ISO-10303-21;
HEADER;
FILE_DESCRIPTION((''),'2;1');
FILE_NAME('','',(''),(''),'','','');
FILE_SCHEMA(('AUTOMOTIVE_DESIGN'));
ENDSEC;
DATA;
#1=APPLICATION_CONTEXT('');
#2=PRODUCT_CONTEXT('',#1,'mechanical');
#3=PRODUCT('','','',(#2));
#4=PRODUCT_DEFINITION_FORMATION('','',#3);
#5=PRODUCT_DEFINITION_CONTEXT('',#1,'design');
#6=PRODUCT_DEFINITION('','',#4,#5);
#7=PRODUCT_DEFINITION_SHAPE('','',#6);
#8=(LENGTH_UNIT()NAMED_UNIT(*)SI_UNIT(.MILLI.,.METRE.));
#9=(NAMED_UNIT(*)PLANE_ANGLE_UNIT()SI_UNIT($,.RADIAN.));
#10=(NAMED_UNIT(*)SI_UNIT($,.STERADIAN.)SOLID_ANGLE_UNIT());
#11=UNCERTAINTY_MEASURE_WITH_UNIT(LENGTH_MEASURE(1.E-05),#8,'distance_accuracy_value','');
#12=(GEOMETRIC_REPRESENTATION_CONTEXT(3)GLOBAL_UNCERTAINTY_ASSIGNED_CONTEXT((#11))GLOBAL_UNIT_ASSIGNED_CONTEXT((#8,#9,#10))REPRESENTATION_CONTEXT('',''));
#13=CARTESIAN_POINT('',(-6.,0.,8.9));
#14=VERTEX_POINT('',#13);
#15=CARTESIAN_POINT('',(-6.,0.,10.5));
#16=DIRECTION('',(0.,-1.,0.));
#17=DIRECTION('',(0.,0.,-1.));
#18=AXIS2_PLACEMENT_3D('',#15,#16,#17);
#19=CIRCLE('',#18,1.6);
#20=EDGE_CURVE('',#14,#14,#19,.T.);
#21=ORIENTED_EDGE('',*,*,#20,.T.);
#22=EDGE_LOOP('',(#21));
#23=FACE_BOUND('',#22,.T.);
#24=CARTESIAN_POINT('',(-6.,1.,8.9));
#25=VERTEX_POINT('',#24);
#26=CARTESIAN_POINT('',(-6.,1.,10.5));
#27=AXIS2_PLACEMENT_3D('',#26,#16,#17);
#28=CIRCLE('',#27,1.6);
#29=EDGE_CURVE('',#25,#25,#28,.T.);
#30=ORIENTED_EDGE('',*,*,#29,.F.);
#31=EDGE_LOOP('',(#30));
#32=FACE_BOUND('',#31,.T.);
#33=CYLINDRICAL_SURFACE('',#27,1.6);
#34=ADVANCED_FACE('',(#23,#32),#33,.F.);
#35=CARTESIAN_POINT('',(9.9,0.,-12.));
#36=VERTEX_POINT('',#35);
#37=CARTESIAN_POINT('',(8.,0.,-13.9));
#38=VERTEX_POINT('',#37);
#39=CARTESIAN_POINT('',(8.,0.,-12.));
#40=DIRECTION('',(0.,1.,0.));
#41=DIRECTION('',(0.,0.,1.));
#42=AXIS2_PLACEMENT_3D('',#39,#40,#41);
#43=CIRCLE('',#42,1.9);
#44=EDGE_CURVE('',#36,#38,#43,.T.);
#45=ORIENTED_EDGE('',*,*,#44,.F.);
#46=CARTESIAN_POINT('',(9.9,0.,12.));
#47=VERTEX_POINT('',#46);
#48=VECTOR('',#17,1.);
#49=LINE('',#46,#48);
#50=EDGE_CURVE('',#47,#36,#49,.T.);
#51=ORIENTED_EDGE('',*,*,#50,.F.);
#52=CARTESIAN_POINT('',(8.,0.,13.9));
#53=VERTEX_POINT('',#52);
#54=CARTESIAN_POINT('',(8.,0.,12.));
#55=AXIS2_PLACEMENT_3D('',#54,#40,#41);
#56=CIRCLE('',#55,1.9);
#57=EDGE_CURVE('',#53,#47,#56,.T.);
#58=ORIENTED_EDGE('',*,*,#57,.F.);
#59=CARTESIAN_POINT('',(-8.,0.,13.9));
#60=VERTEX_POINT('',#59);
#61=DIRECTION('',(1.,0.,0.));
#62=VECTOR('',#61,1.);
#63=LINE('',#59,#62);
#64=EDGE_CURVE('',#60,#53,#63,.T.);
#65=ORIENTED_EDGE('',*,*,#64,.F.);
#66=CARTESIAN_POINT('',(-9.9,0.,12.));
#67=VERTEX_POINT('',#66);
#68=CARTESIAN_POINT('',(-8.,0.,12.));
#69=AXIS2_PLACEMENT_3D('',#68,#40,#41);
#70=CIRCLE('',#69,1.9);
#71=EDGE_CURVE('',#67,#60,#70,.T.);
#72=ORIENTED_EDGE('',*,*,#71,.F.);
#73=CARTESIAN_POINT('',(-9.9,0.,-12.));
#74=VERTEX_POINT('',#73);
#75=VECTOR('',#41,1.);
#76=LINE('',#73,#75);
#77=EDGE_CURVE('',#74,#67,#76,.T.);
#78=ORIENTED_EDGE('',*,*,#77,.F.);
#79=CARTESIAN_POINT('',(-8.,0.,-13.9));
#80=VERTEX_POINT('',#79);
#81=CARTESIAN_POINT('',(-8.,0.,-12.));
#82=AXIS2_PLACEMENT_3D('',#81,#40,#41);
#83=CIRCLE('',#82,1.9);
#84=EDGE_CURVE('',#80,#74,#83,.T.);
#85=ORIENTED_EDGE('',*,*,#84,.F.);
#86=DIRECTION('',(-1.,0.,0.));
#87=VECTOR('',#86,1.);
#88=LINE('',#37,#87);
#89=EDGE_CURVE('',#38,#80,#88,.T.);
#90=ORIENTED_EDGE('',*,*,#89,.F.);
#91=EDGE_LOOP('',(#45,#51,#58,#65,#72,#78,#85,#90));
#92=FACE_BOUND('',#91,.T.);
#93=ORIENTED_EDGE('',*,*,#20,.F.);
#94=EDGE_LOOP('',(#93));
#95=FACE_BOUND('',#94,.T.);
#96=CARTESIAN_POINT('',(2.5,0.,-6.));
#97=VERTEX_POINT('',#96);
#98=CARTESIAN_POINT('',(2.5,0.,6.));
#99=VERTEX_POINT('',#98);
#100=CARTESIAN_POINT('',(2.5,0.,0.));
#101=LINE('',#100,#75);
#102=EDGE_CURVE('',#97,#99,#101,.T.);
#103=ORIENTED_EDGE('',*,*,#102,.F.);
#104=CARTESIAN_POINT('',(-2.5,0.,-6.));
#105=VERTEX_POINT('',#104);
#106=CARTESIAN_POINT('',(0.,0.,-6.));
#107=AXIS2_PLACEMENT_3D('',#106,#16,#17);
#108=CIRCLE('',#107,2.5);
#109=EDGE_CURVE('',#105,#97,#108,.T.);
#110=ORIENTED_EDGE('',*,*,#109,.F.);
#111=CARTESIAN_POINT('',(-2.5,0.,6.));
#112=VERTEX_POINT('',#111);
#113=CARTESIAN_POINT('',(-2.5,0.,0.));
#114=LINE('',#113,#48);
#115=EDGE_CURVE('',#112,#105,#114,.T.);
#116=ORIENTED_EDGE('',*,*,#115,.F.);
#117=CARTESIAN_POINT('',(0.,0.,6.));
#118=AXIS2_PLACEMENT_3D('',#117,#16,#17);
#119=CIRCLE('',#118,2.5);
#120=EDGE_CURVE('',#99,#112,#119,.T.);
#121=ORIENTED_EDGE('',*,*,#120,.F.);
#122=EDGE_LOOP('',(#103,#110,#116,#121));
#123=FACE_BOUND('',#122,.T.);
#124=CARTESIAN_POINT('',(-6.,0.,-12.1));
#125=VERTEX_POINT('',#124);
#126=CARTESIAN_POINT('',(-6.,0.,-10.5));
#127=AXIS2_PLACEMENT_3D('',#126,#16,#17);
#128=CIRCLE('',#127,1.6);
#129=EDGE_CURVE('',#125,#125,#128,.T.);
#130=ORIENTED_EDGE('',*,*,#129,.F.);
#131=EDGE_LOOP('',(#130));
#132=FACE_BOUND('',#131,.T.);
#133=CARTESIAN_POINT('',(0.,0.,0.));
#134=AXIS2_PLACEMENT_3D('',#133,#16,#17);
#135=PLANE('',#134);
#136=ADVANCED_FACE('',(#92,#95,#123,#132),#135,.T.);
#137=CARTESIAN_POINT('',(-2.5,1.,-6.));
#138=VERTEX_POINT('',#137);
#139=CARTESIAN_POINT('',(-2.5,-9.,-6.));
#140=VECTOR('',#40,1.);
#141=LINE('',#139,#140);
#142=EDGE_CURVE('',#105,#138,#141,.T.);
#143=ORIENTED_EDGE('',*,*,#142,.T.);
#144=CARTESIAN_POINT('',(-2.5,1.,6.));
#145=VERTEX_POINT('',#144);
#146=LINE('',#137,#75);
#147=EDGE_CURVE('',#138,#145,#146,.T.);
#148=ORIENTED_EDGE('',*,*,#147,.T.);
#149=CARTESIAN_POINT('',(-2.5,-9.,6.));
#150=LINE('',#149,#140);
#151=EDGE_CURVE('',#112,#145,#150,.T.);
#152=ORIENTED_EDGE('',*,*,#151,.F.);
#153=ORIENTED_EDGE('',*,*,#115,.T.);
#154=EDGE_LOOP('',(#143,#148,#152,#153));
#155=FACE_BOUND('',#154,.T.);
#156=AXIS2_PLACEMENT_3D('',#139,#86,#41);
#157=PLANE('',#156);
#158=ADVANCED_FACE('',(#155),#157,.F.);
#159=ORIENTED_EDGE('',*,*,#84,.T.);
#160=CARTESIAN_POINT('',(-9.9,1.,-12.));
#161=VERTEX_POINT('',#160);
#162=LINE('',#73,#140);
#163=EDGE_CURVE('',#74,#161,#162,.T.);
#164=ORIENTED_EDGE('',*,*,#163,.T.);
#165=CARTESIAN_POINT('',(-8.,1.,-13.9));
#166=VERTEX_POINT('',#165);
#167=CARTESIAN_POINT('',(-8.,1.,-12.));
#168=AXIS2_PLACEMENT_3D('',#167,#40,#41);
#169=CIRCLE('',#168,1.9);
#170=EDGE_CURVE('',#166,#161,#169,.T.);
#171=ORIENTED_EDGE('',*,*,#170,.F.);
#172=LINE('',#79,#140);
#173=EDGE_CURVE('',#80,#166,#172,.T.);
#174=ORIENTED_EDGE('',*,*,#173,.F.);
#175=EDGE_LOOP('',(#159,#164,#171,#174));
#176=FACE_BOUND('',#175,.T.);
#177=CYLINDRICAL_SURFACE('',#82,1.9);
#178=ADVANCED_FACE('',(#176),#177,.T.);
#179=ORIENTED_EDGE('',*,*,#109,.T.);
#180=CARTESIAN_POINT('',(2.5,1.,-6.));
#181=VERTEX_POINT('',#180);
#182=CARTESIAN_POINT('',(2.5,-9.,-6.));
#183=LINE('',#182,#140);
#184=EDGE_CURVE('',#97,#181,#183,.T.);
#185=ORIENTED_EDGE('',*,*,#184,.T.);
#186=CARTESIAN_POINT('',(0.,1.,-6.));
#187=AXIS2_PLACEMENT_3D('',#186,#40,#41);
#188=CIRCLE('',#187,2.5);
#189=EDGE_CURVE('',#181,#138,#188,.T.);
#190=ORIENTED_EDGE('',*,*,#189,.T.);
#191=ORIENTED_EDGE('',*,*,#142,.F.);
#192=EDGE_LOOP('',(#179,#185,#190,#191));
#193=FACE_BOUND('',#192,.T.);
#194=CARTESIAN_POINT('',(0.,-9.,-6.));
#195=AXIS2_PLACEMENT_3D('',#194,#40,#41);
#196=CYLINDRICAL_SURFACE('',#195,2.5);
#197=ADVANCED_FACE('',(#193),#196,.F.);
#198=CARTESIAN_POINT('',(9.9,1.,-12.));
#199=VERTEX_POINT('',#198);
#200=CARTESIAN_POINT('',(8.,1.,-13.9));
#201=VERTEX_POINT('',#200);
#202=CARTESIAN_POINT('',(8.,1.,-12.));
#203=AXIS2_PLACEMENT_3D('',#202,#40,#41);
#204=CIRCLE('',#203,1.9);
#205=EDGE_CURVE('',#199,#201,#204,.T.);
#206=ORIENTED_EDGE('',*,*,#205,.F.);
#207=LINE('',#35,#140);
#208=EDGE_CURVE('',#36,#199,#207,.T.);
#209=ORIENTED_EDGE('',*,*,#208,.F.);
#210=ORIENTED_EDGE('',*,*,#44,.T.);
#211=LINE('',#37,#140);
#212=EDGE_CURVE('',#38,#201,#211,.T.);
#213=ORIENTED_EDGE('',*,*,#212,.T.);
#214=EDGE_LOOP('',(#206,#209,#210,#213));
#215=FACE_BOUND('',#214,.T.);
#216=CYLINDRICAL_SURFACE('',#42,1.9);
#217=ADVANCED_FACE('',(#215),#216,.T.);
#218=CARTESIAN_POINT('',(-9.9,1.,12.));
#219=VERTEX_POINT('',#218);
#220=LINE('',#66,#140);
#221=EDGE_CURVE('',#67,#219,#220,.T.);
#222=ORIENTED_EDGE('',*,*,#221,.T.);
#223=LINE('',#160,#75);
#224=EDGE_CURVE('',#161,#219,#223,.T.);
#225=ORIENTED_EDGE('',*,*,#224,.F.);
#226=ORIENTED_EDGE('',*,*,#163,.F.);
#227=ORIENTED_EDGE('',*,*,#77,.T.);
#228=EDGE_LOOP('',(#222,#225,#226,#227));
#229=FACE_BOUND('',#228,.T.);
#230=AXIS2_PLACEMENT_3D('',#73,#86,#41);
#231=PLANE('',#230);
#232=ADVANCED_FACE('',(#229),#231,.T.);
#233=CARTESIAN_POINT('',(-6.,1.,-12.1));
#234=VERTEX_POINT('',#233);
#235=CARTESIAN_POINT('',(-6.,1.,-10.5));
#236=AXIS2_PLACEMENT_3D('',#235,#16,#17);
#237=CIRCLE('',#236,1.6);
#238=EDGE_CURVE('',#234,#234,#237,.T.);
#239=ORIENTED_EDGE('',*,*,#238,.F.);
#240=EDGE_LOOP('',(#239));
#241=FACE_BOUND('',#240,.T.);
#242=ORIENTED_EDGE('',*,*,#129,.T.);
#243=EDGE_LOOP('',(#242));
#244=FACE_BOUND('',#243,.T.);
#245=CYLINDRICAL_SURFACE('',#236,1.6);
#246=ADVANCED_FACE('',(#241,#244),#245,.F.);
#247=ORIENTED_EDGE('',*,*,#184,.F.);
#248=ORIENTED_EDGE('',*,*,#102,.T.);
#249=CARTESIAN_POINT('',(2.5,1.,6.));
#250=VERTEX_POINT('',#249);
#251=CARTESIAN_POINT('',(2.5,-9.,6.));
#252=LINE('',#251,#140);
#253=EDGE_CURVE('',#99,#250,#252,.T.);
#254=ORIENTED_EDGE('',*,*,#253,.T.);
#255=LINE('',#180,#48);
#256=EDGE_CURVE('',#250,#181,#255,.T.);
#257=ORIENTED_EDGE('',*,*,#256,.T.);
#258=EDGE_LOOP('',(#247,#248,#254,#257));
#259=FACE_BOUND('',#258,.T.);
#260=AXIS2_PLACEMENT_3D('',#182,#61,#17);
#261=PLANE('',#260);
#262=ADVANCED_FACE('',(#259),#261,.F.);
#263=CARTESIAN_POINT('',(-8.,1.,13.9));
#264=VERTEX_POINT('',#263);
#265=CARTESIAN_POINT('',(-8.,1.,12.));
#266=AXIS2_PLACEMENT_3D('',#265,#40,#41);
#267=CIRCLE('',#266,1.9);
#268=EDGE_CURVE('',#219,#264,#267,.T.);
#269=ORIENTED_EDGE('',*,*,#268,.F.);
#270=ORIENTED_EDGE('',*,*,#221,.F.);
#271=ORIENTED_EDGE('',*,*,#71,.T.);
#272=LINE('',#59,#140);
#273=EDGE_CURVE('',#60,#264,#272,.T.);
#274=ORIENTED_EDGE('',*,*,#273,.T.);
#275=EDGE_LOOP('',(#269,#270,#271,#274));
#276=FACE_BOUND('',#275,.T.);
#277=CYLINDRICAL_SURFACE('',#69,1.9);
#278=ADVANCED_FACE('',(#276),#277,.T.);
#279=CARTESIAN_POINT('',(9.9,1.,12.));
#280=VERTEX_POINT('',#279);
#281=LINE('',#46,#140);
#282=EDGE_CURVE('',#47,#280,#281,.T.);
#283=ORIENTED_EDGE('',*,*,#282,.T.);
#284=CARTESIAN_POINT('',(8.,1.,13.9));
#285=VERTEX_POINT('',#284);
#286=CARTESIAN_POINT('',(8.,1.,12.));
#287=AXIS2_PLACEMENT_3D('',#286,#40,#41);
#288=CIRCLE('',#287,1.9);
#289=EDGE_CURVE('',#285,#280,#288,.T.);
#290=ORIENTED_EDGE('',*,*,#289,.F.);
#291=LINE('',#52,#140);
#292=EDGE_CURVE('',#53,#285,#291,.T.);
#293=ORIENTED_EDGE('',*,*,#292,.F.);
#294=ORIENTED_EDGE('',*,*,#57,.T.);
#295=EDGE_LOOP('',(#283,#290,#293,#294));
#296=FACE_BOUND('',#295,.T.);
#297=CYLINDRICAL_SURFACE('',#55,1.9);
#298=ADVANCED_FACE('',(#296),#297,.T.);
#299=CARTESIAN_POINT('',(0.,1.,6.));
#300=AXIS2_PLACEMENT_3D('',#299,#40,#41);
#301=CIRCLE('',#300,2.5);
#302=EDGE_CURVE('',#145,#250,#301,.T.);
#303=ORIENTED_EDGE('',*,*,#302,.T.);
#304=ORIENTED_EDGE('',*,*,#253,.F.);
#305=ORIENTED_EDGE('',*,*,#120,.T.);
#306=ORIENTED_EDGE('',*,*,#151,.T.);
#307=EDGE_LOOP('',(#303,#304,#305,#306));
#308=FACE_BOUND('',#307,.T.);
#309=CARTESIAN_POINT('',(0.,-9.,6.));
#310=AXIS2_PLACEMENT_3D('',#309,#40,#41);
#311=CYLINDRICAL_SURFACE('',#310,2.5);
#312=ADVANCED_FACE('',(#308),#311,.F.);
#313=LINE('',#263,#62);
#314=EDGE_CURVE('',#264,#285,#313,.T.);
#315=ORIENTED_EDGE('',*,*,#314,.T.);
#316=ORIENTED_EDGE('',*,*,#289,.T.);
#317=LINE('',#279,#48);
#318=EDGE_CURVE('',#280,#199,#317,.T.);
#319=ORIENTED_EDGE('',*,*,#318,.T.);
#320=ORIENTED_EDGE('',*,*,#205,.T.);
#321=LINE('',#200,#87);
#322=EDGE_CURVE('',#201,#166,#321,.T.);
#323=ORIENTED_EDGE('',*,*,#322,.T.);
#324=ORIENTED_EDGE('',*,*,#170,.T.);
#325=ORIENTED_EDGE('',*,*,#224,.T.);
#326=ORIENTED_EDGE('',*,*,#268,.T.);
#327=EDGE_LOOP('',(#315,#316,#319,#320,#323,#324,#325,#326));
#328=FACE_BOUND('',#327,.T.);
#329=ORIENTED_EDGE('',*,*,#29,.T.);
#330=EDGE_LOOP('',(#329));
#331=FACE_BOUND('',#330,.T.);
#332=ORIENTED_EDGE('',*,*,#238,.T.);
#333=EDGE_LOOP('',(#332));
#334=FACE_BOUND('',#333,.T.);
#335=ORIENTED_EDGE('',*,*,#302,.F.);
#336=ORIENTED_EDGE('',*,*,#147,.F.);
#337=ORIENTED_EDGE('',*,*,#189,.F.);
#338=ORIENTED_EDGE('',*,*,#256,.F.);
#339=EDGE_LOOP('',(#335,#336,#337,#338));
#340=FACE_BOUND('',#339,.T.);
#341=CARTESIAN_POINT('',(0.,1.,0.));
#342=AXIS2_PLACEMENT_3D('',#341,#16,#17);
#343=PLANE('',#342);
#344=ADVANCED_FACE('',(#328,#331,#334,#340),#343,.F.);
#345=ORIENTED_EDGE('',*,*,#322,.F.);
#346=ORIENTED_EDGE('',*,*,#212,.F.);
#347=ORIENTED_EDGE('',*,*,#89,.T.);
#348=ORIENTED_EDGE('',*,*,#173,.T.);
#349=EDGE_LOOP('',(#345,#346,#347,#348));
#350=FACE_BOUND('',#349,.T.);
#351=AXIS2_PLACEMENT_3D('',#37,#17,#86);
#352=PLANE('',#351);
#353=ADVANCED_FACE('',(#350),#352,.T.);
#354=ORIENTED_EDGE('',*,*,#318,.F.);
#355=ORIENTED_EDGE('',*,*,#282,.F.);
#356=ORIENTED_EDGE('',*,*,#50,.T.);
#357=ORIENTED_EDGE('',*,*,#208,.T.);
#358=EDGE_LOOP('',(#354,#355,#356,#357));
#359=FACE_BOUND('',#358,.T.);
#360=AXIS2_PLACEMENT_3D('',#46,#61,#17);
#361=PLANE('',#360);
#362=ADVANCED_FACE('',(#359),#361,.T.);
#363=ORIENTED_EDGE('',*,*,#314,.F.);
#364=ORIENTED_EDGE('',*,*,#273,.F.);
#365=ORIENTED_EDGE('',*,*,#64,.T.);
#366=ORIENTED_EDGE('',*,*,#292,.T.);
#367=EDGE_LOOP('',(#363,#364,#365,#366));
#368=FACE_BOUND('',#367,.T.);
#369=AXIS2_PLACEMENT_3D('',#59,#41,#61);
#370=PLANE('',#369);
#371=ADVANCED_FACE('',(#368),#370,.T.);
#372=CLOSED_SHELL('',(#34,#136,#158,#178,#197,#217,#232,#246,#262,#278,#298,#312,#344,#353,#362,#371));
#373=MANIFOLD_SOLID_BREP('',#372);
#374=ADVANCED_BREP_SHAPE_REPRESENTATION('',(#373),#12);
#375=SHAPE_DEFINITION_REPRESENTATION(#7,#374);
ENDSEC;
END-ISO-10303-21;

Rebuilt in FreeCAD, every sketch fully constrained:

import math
import FreeCAD as App
import Part
import Sketcher
Q = App.Units.Quantity


def edges_at(feature, points):
    """Names of the edges that pass closest to the given points."""
    edges = feature.Shape.Edges
    near = lambda p: min(range(len(edges)), key=lambda i: edges[i].distToShape(Part.Vertex(*p))[0])
    return sorted({f"Edge{near(p) + 1}" for p in points})

doc = App.newDocument("Part")
body = doc.addObject("PartDesign::Body", "Body")

# Sketch on XZ plane
sketch1 = body.newObject("Sketcher::SketchObject", "Sketch")
sketch1.AttachmentSupport = (doc.getObject("XZ_Plane"), [""])
sketch1.MapMode = "FlatFace"
sketch1.addGeometry(Part.LineSegment(App.Vector(-10, -14, 0), App.Vector(-10, 14, 0)), False)
sketch1.addGeometry(Part.LineSegment(App.Vector(-10, 14, 0), App.Vector(10, 14, 0)), False)
sketch1.addGeometry(Part.LineSegment(App.Vector(10, 14, 0), App.Vector(10, -14, 0)), False)
sketch1.addGeometry(Part.LineSegment(App.Vector(10, -14, 0), App.Vector(-10, -14, 0)), False)
sketch1.addConstraint(Sketcher.Constraint("Coincident", 0, 2, 1, 1))
sketch1.addConstraint(Sketcher.Constraint("Coincident", 1, 2, 2, 1))
sketch1.addConstraint(Sketcher.Constraint("Coincident", 2, 2, 3, 1))
sketch1.addConstraint(Sketcher.Constraint("Coincident", 3, 2, 0, 1))
sketch1.addConstraint(Sketcher.Constraint("Vertical", 0))
sketch1.addConstraint(Sketcher.Constraint("Horizontal", 1))
sketch1.addConstraint(Sketcher.Constraint("Vertical", 2))
sketch1.addConstraint(Sketcher.Constraint("Horizontal", 3))
sketch1.addConstraint(Sketcher.Constraint("Symmetric", 0, 2, 2, 2, -1, 1))
sketch1.addConstraint(Sketcher.Constraint("DistanceX", 1, 1, 1, 2, Q("20 mm")))
sketch1.addConstraint(Sketcher.Constraint("DistanceY", 0, 1, 0, 2, Q("28 mm")))
pad1 = body.newObject("PartDesign::Pad", "Pad")
pad1.Profile = sketch1
pad1.Length = 1
pad1.Reversed = True
doc.recompute()

fillet = body.newObject("PartDesign::Fillet", "Fillet")
fillet.Base = (pad1, edges_at(pad1, [
    (10, 0.5, 14),
    (-10, 0.5, 14),
    (-10, 0.5, -14),
    (10, 0.5, -14),
]))
fillet.Radius = 2

# Sketch on XZ plane
sketch2 = body.newObject("Sketcher::SketchObject", "Sketch001")
sketch2.AttachmentSupport = (doc.getObject("XZ_Plane"), [""])
sketch2.MapMode = "FlatFace"
sketch2.AttachmentOffset = App.Placement(App.Vector(0, 0, -1), App.Rotation())
sketch2.addGeometry(Part.LineSegment(App.Vector(-12.7, -15.3, 0), App.Vector(-12.7, 15.3, 0)), False)
sketch2.addGeometry(Part.LineSegment(App.Vector(-12.7, 15.3, 0), App.Vector(12.7, 15.3, 0)), False)
sketch2.addGeometry(Part.LineSegment(App.Vector(12.7, 15.3, 0), App.Vector(12.7, -15.3, 0)), False)
sketch2.addGeometry(Part.LineSegment(App.Vector(12.7, -15.3, 0), App.Vector(-12.7, -15.3, 0)), False)
sketch2.addGeometry(Part.LineSegment(App.Vector(8, 13.9, 0), App.Vector(-8, 13.9, 0)), False)
sketch2.addGeometry(Part.ArcOfCircle(Part.Circle(App.Vector(-8, 12, 0), App.Vector(0, 0, 1), 1.9), math.radians(90), math.radians(180)), False)
sketch2.addGeometry(Part.LineSegment(App.Vector(-9.9, 12, 0), App.Vector(-9.9, -12, 0)), False)
sketch2.addGeometry(Part.ArcOfCircle(Part.Circle(App.Vector(-8, -12, 0), App.Vector(0, 0, 1), 1.9), math.radians(-180), math.radians(-90)), False)
sketch2.addGeometry(Part.LineSegment(App.Vector(-8, -13.9, 0), App.Vector(8, -13.9, 0)), False)
sketch2.addGeometry(Part.ArcOfCircle(Part.Circle(App.Vector(8, -12, 0), App.Vector(0, 0, 1), 1.9), math.radians(-90), math.radians(0)), False)
sketch2.addGeometry(Part.LineSegment(App.Vector(9.9, -12, 0), App.Vector(9.9, 12, 0)), False)
sketch2.addGeometry(Part.ArcOfCircle(Part.Circle(App.Vector(8, 12, 0), App.Vector(0, 0, 1), 1.9), math.radians(0), math.radians(90)), False)
sketch2.addConstraint(Sketcher.Constraint("Coincident", 0, 2, 1, 1))
sketch2.addConstraint(Sketcher.Constraint("Coincident", 1, 2, 2, 1))
sketch2.addConstraint(Sketcher.Constraint("Coincident", 2, 2, 3, 1))
sketch2.addConstraint(Sketcher.Constraint("Coincident", 3, 2, 0, 1))
sketch2.addConstraint(Sketcher.Constraint("Tangent", 4, 2, 5, 1))
sketch2.addConstraint(Sketcher.Constraint("Tangent", 5, 2, 6, 1))
sketch2.addConstraint(Sketcher.Constraint("Tangent", 6, 2, 7, 1))
sketch2.addConstraint(Sketcher.Constraint("Tangent", 7, 2, 8, 1))
sketch2.addConstraint(Sketcher.Constraint("Tangent", 8, 2, 9, 1))
sketch2.addConstraint(Sketcher.Constraint("Tangent", 9, 2, 10, 1))
sketch2.addConstraint(Sketcher.Constraint("Tangent", 10, 2, 11, 1))
sketch2.addConstraint(Sketcher.Constraint("Tangent", 11, 2, 4, 1))
sketch2.addConstraint(Sketcher.Constraint("Vertical", 0))
sketch2.addConstraint(Sketcher.Constraint("Horizontal", 1))
sketch2.addConstraint(Sketcher.Constraint("Vertical", 2))
sketch2.addConstraint(Sketcher.Constraint("Horizontal", 3))
sketch2.addConstraint(Sketcher.Constraint("Horizontal", 4))
sketch2.addConstraint(Sketcher.Constraint("Vertical", 6))
sketch2.addConstraint(Sketcher.Constraint("Horizontal", 8))
sketch2.addConstraint(Sketcher.Constraint("Vertical", 10))
sketch2.addConstraint(Sketcher.Constraint("Equal", 5, 7))
sketch2.addConstraint(Sketcher.Constraint("Equal", 7, 9))
sketch2.addConstraint(Sketcher.Constraint("Equal", 9, 11))
sketch2.addConstraint(Sketcher.Constraint("Symmetric", 5, 3, 9, 3, -1, 1))
sketch2.addConstraint(Sketcher.Constraint("Symmetric", 0, 2, 2, 2, -1, 1))
sketch2.addConstraint(Sketcher.Constraint("Radius", 5, Q("1.9 mm")))
sketch2.addConstraint(Sketcher.Constraint("DistanceX", 4, 2, 4, 1, Q("16 mm")))
sketch2.addConstraint(Sketcher.Constraint("DistanceY", 6, 2, 6, 1, Q("24 mm")))
sketch2.addConstraint(Sketcher.Constraint("DistanceX", 1, 1, 1, 2, Q("25.473592 mm")))
sketch2.addConstraint(Sketcher.Constraint("DistanceY", 0, 1, 0, 2, Q("30.562755 mm")))
pocket1 = body.newObject("PartDesign::Pocket", "Pocket")
pocket1.Profile = sketch2
pocket1.Type = "ThroughAll"
pocket1.Reversed = True

# Sketch on XZ plane
sketch3 = body.newObject("Sketcher::SketchObject", "Sketch002")
sketch3.AttachmentSupport = (doc.getObject("XZ_Plane"), [""])
sketch3.MapMode = "FlatFace"
sketch3.addGeometry(Part.Circle(App.Vector(-6, 10.5, 0), App.Vector(0, 0, 1), 1.6), False)
sketch3.addGeometry(Part.Circle(App.Vector(-6, -10.5, 0), App.Vector(0, 0, 1), 1.6), False)
sketch3.addConstraint(Sketcher.Constraint("Equal", 0, 1))
sketch3.addConstraint(Sketcher.Constraint("Symmetric", 0, 3, 1, 3, -1))
sketch3.addConstraint(Sketcher.Constraint("Diameter", 0, Q("3.2 mm")))
sketch3.addConstraint(Sketcher.Constraint("DistanceX", 0, 3, -1, 1, Q("6 mm")))
sketch3.addConstraint(Sketcher.Constraint("DistanceY", 1, 3, 0, 3, Q("21 mm")))
pocket2 = body.newObject("PartDesign::Pocket", "Pocket001")
pocket2.Profile = sketch3
pocket2.Type = "ThroughAll"

# Sketch on XZ plane
sketch4 = body.newObject("Sketcher::SketchObject", "Sketch003")
sketch4.AttachmentSupport = (doc.getObject("XZ_Plane"), [""])
sketch4.MapMode = "FlatFace"
sketch4.AttachmentOffset = App.Placement(App.Vector(0, 0, -1), App.Rotation())
sketch4.addGeometry(Part.LineSegment(App.Vector(2.5, 6, 0), App.Vector(2.5, -6, 0)), False)
sketch4.addGeometry(Part.ArcOfCircle(Part.Circle(App.Vector(0, -6, 0), App.Vector(0, 0, 1), 2.5), math.radians(180), math.radians(360)), False)
sketch4.addGeometry(Part.LineSegment(App.Vector(-2.5, -6, 0), App.Vector(-2.5, 6, 0)), False)
sketch4.addGeometry(Part.ArcOfCircle(Part.Circle(App.Vector(0, 6, 0), App.Vector(0, 0, 1), 2.5), math.radians(0), math.radians(180)), False)
sketch4.addConstraint(Sketcher.Constraint("Tangent", 0, 2, 1, 2))
sketch4.addConstraint(Sketcher.Constraint("Tangent", 1, 1, 2, 1))
sketch4.addConstraint(Sketcher.Constraint("Tangent", 2, 2, 3, 2))
sketch4.addConstraint(Sketcher.Constraint("Tangent", 3, 1, 0, 1))
sketch4.addConstraint(Sketcher.Constraint("Vertical", 0))
sketch4.addConstraint(Sketcher.Constraint("Vertical", 2))
sketch4.addConstraint(Sketcher.Constraint("Symmetric", 1, 3, 3, 3, -1, 1))
sketch4.addConstraint(Sketcher.Constraint("Radius", 1, Q("2.5 mm")))
sketch4.addConstraint(Sketcher.Constraint("DistanceY", 0, 2, 0, 1, Q("12 mm")))
pocket3 = body.newObject("PartDesign::Pocket", "Pocket002")
pocket3.Profile = sketch4
pocket3.Length = 10
pocket3.Reversed = True

doc.recompute()
